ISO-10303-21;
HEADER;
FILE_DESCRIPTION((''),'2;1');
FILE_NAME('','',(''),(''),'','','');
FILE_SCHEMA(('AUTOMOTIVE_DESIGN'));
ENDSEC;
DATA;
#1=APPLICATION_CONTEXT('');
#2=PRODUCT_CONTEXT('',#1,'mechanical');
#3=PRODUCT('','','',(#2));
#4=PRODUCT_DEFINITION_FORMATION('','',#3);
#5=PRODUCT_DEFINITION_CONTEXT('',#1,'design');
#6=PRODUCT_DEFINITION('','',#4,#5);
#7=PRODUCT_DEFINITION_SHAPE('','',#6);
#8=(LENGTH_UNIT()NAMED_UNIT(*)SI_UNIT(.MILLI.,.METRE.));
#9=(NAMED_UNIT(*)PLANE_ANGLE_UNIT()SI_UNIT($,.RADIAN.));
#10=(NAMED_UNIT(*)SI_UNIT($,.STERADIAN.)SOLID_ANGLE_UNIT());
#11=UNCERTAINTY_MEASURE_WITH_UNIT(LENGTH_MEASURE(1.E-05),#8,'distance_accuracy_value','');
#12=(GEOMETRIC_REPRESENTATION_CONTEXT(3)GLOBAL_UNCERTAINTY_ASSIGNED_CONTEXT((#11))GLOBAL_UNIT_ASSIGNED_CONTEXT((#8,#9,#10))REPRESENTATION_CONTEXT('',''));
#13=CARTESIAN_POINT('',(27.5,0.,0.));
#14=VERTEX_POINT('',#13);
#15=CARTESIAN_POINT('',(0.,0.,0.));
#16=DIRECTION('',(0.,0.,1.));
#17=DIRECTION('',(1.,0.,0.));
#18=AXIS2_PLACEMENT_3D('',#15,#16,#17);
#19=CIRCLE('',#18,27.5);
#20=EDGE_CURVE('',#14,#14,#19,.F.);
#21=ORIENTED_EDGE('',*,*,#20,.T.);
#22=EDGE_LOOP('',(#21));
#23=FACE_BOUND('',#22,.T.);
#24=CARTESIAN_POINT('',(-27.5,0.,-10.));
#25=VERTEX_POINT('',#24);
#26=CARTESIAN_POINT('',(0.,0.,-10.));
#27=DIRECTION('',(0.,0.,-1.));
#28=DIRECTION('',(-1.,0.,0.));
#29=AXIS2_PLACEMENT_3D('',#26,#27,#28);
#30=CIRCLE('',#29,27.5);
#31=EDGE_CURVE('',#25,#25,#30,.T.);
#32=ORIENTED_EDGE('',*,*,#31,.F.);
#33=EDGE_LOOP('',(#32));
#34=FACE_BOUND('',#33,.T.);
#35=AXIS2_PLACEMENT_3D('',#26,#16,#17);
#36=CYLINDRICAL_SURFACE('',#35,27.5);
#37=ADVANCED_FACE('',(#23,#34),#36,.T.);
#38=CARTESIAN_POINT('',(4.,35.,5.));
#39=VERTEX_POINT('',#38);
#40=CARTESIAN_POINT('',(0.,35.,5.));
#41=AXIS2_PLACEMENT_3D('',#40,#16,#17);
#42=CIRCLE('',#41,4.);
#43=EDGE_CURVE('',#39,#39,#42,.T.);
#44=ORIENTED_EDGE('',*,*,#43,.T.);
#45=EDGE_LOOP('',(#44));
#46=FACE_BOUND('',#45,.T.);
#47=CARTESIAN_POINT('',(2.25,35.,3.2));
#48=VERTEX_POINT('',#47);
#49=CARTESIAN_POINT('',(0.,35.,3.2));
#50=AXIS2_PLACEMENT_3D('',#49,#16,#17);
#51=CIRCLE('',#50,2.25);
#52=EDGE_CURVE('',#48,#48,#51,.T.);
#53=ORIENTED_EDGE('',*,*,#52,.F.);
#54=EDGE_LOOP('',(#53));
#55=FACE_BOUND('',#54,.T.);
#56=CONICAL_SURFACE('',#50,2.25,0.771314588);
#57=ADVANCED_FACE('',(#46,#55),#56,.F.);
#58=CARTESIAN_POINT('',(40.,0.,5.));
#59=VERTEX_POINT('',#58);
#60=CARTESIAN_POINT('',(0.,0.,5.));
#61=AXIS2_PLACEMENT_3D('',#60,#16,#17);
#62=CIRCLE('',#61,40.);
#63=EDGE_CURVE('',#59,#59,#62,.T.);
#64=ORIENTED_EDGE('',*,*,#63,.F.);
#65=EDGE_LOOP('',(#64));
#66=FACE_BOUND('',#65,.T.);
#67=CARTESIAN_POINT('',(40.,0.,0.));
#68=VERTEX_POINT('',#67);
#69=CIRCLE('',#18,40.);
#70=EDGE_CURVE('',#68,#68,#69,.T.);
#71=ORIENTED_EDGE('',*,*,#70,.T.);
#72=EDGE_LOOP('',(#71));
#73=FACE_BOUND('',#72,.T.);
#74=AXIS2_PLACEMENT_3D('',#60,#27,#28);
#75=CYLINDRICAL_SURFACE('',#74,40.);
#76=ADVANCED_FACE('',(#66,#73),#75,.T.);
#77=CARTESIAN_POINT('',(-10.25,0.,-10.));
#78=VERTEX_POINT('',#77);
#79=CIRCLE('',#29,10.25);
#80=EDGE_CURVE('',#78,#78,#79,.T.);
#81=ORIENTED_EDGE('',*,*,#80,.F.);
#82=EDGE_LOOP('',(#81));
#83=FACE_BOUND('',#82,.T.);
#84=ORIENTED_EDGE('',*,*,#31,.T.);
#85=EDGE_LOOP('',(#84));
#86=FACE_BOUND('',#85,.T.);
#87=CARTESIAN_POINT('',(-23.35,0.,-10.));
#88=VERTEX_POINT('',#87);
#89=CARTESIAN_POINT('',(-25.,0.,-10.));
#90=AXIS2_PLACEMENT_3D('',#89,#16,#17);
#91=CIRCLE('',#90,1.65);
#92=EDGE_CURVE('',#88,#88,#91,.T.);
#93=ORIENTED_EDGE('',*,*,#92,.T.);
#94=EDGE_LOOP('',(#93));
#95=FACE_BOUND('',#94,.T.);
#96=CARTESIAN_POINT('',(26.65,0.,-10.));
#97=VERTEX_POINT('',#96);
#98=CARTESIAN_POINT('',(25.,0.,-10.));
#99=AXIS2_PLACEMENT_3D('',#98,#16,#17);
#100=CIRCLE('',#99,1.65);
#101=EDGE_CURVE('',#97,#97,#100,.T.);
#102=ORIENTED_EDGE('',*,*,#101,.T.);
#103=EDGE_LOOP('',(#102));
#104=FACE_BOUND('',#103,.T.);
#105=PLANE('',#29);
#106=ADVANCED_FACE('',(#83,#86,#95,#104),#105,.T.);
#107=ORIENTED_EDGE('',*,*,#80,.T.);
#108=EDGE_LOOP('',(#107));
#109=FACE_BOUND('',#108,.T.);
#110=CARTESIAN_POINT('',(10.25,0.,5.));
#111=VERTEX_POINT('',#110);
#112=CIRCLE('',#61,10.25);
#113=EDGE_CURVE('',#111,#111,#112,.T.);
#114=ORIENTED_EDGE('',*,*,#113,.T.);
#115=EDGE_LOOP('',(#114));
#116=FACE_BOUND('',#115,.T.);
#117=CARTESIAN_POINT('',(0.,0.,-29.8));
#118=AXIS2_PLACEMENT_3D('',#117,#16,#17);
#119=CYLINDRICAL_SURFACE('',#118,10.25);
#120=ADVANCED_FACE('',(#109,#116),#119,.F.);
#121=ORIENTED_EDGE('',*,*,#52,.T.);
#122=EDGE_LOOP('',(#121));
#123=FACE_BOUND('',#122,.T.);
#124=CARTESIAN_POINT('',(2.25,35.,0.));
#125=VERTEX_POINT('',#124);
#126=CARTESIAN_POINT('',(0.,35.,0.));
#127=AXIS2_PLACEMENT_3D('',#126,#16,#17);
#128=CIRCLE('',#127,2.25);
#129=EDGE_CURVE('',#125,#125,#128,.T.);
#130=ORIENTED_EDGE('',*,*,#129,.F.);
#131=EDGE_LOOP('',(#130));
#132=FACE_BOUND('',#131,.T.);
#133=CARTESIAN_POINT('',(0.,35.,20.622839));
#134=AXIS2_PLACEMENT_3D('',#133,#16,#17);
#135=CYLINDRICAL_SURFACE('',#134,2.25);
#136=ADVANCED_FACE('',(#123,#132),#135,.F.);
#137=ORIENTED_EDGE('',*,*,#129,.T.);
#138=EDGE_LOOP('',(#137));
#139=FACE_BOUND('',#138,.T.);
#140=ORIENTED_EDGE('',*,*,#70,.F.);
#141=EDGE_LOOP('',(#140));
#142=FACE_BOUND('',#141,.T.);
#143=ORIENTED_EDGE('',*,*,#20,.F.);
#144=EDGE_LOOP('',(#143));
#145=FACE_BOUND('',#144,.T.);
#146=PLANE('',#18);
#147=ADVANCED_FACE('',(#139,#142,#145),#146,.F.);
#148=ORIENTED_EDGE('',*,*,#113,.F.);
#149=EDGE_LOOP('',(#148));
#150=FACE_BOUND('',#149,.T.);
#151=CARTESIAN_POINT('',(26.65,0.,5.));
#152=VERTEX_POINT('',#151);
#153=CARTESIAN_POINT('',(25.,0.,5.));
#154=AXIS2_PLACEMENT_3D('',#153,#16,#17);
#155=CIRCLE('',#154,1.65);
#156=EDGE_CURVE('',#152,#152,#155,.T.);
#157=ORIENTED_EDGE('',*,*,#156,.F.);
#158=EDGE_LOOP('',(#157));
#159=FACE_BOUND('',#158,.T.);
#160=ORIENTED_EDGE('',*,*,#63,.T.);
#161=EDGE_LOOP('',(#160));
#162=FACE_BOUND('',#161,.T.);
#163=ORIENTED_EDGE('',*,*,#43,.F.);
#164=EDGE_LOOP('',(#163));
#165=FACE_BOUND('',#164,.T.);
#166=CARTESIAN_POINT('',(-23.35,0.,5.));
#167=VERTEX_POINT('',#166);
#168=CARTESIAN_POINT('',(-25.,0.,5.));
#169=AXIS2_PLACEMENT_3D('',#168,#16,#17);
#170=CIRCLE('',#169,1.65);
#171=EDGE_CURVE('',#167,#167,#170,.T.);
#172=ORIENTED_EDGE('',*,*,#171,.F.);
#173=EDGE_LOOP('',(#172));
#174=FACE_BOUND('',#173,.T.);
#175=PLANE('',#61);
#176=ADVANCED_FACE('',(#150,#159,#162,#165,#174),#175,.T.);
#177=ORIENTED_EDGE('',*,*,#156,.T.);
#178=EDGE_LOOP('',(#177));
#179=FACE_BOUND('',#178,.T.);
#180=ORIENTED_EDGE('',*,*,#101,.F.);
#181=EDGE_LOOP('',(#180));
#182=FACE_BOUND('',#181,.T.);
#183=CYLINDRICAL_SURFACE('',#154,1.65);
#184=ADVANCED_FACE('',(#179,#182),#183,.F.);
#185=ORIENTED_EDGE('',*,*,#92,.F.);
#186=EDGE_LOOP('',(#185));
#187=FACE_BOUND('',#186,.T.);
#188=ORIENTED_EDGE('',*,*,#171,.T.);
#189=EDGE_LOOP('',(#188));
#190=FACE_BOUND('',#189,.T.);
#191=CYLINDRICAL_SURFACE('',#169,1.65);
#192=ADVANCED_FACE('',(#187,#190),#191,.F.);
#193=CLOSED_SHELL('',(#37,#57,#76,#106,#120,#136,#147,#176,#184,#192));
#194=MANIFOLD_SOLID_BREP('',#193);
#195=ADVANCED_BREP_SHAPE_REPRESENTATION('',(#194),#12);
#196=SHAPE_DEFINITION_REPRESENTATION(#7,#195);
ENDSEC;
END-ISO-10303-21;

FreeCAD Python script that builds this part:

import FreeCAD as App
import Part
import Sketcher


def add_polygon(sketch, points):
    """Adds a closed chain of lines whose ends are joined by coincident constraints."""
    first, n = sketch.GeometryCount, len(points)
    for a, b in zip(points, points[1:] + points[:1]):
        sketch.addGeometry(Part.LineSegment(App.Vector(*a, 0), App.Vector(*b, 0)), False)
    for i in range(n):
        sketch.addConstraint(Sketcher.Constraint("Coincident", first + i, 2, first + (i + 1) % n, 1))

doc = App.newDocument("Part")
body = doc.addObject("PartDesign::Body", "Body")

# Sketch on XY plane
sketch1 = body.newObject("Sketcher::SketchObject", "Sketch")
sketch1.AttachmentSupport = (doc.getObject("XY_Plane"), [""])
sketch1.MapMode = "FlatFace"
sketch1.addGeometry(Part.Circle(App.Vector(0, 0, 0), App.Vector(0, 0, 1), 40), False)
sketch1.addConstraint(Sketcher.Constraint("Coincident", 0, 3, -1, 1))
sketch1.addConstraint(Sketcher.Constraint("Diameter", 0, 80.0))
pad1 = body.newObject("PartDesign::Pad", "Pad")
pad1.Profile = sketch1
pad1.Length = 5

# Sketch on YZ plane
sketch2 = body.newObject("Sketcher::SketchObject", "Sketch001")
sketch2.AttachmentSupport = (doc.getObject("YZ_Plane"), [""])
sketch2.MapMode = "FlatFace"
add_polygon(sketch2, [(39, 5), (35, 5), (35, 0), (37.2, 0), (37.2, 3.2)])  # lines 0-4
sketch2.addGeometry(Part.LineSegment(App.Vector(35, 5, 0), App.Vector(35, 0, 0)), True)  # axis
sketch2.addConstraint(Sketcher.Constraint("Horizontal", 0))
sketch2.addConstraint(Sketcher.Constraint("Vertical", 1))
sketch2.addConstraint(Sketcher.Constraint("Horizontal", 2))
sketch2.addConstraint(Sketcher.Constraint("Vertical", 3))
sketch2.addConstraint(Sketcher.Constraint("Vertical", 5))
sketch2.addConstraint(Sketcher.Constraint("Coincident", 5, 1, 0, 2))
sketch2.addConstraint(Sketcher.Constraint("PointOnObject", 1, 2, -1))
sketch2.addConstraint(Sketcher.Constraint("PointOnObject", 5, 2, -1))
sketch2.addConstraint(Sketcher.Constraint("DistanceX", 0, 2, 0, 1, 4.0))
sketch2.addConstraint(Sketcher.Constraint("DistanceY", 1, 2, 1, 1, 5.0))
sketch2.addConstraint(Sketcher.Constraint("DistanceY", 3, 1, 3, 2, 3.2))
sketch2.addConstraint(Sketcher.Constraint("DistanceX", -1, 1, 0, 2, 35.0))
sketch2.addConstraint(Sketcher.Constraint("DistanceX", 2, 1, 2, 2, 2.25))
groove = body.newObject("PartDesign::Groove", "Groove")
groove.Profile = sketch2
groove.ReferenceAxis = (sketch2, ["Axis0"])
groove.Angle = 360

# Sketch on XY plane
sketch3 = body.newObject("Sketcher::SketchObject", "Sketch002")
sketch3.AttachmentSupport = (doc.getObject("XY_Plane"), [""])
sketch3.MapMode = "FlatFace"
sketch3.addGeometry(Part.Circle(App.Vector(0, 0, 0), App.Vector(0, 0, 1), 28), False)
sketch3.addConstraint(Sketcher.Constraint("Coincident", 0, 3, -1, 1))
sketch3.addConstraint(Sketcher.Constraint("Diameter", 0, 55.0))
pad2 = body.newObject("PartDesign::Pad", "Pad001")
pad2.Profile = sketch3
pad2.Length = 10
pad2.Reversed = True

# Sketch on XY plane
sketch4 = body.newObject("Sketcher::SketchObject", "Sketch003")
sketch4.AttachmentSupport = (doc.getObject("XY_Plane"), [""])
sketch4.MapMode = "FlatFace"
sketch4.AttachmentOffset = App.Placement(App.Vector(0, 0, 5), App.Rotation())
sketch4.addGeometry(Part.Circle(App.Vector(-25, 0, 0), App.Vector(0, 0, 1), 1.6), False)
sketch4.addGeometry(Part.Circle(App.Vector(25, 0, 0), App.Vector(0, 0, 1), 1.6), False)
sketch4.addConstraint(Sketcher.Constraint("Equal", 0, 1))
sketch4.addConstraint(Sketcher.Constraint("Symmetric", 0, 3, 1, 3, -1, 1))
sketch4.addConstraint(Sketcher.Constraint("PointOnObject", 0, 3, -1))
sketch4.addConstraint(Sketcher.Constraint("Diameter", 0, 3.3))
sketch4.addConstraint(Sketcher.Constraint("DistanceX", 0, 3, -1, 1, 25.0))
doc.recompute()
hole = body.newObject("PartDesign::Hole", "Hole")
hole.Profile = sketch4
hole.ThreadType = "None"
hole.Diameter = 3.3
hole.DepthType = "ThroughAll"

# Sketch on XY plane
sketch5 = body.newObject("Sketcher::SketchObject", "Sketch004")
sketch5.AttachmentSupport = (doc.getObject("XY_Plane"), [""])
sketch5.MapMode = "FlatFace"
sketch5.AttachmentOffset = App.Placement(App.Vector(0, 0, 5), App.Rotation())
sketch5.addGeometry(Part.Circle(App.Vector(0, 0, 0), App.Vector(0, 0, 1), 10), False)
sketch5.addConstraint(Sketcher.Constraint("Coincident", 0, 3, -1, 1))
sketch5.addConstraint(Sketcher.Constraint("Diameter", 0, 20.5))
pocket1 = body.newObject("PartDesign::Pocket", "Pocket")
pocket1.Profile = sketch5
pocket1.Length = 34.8

doc.recompute()
